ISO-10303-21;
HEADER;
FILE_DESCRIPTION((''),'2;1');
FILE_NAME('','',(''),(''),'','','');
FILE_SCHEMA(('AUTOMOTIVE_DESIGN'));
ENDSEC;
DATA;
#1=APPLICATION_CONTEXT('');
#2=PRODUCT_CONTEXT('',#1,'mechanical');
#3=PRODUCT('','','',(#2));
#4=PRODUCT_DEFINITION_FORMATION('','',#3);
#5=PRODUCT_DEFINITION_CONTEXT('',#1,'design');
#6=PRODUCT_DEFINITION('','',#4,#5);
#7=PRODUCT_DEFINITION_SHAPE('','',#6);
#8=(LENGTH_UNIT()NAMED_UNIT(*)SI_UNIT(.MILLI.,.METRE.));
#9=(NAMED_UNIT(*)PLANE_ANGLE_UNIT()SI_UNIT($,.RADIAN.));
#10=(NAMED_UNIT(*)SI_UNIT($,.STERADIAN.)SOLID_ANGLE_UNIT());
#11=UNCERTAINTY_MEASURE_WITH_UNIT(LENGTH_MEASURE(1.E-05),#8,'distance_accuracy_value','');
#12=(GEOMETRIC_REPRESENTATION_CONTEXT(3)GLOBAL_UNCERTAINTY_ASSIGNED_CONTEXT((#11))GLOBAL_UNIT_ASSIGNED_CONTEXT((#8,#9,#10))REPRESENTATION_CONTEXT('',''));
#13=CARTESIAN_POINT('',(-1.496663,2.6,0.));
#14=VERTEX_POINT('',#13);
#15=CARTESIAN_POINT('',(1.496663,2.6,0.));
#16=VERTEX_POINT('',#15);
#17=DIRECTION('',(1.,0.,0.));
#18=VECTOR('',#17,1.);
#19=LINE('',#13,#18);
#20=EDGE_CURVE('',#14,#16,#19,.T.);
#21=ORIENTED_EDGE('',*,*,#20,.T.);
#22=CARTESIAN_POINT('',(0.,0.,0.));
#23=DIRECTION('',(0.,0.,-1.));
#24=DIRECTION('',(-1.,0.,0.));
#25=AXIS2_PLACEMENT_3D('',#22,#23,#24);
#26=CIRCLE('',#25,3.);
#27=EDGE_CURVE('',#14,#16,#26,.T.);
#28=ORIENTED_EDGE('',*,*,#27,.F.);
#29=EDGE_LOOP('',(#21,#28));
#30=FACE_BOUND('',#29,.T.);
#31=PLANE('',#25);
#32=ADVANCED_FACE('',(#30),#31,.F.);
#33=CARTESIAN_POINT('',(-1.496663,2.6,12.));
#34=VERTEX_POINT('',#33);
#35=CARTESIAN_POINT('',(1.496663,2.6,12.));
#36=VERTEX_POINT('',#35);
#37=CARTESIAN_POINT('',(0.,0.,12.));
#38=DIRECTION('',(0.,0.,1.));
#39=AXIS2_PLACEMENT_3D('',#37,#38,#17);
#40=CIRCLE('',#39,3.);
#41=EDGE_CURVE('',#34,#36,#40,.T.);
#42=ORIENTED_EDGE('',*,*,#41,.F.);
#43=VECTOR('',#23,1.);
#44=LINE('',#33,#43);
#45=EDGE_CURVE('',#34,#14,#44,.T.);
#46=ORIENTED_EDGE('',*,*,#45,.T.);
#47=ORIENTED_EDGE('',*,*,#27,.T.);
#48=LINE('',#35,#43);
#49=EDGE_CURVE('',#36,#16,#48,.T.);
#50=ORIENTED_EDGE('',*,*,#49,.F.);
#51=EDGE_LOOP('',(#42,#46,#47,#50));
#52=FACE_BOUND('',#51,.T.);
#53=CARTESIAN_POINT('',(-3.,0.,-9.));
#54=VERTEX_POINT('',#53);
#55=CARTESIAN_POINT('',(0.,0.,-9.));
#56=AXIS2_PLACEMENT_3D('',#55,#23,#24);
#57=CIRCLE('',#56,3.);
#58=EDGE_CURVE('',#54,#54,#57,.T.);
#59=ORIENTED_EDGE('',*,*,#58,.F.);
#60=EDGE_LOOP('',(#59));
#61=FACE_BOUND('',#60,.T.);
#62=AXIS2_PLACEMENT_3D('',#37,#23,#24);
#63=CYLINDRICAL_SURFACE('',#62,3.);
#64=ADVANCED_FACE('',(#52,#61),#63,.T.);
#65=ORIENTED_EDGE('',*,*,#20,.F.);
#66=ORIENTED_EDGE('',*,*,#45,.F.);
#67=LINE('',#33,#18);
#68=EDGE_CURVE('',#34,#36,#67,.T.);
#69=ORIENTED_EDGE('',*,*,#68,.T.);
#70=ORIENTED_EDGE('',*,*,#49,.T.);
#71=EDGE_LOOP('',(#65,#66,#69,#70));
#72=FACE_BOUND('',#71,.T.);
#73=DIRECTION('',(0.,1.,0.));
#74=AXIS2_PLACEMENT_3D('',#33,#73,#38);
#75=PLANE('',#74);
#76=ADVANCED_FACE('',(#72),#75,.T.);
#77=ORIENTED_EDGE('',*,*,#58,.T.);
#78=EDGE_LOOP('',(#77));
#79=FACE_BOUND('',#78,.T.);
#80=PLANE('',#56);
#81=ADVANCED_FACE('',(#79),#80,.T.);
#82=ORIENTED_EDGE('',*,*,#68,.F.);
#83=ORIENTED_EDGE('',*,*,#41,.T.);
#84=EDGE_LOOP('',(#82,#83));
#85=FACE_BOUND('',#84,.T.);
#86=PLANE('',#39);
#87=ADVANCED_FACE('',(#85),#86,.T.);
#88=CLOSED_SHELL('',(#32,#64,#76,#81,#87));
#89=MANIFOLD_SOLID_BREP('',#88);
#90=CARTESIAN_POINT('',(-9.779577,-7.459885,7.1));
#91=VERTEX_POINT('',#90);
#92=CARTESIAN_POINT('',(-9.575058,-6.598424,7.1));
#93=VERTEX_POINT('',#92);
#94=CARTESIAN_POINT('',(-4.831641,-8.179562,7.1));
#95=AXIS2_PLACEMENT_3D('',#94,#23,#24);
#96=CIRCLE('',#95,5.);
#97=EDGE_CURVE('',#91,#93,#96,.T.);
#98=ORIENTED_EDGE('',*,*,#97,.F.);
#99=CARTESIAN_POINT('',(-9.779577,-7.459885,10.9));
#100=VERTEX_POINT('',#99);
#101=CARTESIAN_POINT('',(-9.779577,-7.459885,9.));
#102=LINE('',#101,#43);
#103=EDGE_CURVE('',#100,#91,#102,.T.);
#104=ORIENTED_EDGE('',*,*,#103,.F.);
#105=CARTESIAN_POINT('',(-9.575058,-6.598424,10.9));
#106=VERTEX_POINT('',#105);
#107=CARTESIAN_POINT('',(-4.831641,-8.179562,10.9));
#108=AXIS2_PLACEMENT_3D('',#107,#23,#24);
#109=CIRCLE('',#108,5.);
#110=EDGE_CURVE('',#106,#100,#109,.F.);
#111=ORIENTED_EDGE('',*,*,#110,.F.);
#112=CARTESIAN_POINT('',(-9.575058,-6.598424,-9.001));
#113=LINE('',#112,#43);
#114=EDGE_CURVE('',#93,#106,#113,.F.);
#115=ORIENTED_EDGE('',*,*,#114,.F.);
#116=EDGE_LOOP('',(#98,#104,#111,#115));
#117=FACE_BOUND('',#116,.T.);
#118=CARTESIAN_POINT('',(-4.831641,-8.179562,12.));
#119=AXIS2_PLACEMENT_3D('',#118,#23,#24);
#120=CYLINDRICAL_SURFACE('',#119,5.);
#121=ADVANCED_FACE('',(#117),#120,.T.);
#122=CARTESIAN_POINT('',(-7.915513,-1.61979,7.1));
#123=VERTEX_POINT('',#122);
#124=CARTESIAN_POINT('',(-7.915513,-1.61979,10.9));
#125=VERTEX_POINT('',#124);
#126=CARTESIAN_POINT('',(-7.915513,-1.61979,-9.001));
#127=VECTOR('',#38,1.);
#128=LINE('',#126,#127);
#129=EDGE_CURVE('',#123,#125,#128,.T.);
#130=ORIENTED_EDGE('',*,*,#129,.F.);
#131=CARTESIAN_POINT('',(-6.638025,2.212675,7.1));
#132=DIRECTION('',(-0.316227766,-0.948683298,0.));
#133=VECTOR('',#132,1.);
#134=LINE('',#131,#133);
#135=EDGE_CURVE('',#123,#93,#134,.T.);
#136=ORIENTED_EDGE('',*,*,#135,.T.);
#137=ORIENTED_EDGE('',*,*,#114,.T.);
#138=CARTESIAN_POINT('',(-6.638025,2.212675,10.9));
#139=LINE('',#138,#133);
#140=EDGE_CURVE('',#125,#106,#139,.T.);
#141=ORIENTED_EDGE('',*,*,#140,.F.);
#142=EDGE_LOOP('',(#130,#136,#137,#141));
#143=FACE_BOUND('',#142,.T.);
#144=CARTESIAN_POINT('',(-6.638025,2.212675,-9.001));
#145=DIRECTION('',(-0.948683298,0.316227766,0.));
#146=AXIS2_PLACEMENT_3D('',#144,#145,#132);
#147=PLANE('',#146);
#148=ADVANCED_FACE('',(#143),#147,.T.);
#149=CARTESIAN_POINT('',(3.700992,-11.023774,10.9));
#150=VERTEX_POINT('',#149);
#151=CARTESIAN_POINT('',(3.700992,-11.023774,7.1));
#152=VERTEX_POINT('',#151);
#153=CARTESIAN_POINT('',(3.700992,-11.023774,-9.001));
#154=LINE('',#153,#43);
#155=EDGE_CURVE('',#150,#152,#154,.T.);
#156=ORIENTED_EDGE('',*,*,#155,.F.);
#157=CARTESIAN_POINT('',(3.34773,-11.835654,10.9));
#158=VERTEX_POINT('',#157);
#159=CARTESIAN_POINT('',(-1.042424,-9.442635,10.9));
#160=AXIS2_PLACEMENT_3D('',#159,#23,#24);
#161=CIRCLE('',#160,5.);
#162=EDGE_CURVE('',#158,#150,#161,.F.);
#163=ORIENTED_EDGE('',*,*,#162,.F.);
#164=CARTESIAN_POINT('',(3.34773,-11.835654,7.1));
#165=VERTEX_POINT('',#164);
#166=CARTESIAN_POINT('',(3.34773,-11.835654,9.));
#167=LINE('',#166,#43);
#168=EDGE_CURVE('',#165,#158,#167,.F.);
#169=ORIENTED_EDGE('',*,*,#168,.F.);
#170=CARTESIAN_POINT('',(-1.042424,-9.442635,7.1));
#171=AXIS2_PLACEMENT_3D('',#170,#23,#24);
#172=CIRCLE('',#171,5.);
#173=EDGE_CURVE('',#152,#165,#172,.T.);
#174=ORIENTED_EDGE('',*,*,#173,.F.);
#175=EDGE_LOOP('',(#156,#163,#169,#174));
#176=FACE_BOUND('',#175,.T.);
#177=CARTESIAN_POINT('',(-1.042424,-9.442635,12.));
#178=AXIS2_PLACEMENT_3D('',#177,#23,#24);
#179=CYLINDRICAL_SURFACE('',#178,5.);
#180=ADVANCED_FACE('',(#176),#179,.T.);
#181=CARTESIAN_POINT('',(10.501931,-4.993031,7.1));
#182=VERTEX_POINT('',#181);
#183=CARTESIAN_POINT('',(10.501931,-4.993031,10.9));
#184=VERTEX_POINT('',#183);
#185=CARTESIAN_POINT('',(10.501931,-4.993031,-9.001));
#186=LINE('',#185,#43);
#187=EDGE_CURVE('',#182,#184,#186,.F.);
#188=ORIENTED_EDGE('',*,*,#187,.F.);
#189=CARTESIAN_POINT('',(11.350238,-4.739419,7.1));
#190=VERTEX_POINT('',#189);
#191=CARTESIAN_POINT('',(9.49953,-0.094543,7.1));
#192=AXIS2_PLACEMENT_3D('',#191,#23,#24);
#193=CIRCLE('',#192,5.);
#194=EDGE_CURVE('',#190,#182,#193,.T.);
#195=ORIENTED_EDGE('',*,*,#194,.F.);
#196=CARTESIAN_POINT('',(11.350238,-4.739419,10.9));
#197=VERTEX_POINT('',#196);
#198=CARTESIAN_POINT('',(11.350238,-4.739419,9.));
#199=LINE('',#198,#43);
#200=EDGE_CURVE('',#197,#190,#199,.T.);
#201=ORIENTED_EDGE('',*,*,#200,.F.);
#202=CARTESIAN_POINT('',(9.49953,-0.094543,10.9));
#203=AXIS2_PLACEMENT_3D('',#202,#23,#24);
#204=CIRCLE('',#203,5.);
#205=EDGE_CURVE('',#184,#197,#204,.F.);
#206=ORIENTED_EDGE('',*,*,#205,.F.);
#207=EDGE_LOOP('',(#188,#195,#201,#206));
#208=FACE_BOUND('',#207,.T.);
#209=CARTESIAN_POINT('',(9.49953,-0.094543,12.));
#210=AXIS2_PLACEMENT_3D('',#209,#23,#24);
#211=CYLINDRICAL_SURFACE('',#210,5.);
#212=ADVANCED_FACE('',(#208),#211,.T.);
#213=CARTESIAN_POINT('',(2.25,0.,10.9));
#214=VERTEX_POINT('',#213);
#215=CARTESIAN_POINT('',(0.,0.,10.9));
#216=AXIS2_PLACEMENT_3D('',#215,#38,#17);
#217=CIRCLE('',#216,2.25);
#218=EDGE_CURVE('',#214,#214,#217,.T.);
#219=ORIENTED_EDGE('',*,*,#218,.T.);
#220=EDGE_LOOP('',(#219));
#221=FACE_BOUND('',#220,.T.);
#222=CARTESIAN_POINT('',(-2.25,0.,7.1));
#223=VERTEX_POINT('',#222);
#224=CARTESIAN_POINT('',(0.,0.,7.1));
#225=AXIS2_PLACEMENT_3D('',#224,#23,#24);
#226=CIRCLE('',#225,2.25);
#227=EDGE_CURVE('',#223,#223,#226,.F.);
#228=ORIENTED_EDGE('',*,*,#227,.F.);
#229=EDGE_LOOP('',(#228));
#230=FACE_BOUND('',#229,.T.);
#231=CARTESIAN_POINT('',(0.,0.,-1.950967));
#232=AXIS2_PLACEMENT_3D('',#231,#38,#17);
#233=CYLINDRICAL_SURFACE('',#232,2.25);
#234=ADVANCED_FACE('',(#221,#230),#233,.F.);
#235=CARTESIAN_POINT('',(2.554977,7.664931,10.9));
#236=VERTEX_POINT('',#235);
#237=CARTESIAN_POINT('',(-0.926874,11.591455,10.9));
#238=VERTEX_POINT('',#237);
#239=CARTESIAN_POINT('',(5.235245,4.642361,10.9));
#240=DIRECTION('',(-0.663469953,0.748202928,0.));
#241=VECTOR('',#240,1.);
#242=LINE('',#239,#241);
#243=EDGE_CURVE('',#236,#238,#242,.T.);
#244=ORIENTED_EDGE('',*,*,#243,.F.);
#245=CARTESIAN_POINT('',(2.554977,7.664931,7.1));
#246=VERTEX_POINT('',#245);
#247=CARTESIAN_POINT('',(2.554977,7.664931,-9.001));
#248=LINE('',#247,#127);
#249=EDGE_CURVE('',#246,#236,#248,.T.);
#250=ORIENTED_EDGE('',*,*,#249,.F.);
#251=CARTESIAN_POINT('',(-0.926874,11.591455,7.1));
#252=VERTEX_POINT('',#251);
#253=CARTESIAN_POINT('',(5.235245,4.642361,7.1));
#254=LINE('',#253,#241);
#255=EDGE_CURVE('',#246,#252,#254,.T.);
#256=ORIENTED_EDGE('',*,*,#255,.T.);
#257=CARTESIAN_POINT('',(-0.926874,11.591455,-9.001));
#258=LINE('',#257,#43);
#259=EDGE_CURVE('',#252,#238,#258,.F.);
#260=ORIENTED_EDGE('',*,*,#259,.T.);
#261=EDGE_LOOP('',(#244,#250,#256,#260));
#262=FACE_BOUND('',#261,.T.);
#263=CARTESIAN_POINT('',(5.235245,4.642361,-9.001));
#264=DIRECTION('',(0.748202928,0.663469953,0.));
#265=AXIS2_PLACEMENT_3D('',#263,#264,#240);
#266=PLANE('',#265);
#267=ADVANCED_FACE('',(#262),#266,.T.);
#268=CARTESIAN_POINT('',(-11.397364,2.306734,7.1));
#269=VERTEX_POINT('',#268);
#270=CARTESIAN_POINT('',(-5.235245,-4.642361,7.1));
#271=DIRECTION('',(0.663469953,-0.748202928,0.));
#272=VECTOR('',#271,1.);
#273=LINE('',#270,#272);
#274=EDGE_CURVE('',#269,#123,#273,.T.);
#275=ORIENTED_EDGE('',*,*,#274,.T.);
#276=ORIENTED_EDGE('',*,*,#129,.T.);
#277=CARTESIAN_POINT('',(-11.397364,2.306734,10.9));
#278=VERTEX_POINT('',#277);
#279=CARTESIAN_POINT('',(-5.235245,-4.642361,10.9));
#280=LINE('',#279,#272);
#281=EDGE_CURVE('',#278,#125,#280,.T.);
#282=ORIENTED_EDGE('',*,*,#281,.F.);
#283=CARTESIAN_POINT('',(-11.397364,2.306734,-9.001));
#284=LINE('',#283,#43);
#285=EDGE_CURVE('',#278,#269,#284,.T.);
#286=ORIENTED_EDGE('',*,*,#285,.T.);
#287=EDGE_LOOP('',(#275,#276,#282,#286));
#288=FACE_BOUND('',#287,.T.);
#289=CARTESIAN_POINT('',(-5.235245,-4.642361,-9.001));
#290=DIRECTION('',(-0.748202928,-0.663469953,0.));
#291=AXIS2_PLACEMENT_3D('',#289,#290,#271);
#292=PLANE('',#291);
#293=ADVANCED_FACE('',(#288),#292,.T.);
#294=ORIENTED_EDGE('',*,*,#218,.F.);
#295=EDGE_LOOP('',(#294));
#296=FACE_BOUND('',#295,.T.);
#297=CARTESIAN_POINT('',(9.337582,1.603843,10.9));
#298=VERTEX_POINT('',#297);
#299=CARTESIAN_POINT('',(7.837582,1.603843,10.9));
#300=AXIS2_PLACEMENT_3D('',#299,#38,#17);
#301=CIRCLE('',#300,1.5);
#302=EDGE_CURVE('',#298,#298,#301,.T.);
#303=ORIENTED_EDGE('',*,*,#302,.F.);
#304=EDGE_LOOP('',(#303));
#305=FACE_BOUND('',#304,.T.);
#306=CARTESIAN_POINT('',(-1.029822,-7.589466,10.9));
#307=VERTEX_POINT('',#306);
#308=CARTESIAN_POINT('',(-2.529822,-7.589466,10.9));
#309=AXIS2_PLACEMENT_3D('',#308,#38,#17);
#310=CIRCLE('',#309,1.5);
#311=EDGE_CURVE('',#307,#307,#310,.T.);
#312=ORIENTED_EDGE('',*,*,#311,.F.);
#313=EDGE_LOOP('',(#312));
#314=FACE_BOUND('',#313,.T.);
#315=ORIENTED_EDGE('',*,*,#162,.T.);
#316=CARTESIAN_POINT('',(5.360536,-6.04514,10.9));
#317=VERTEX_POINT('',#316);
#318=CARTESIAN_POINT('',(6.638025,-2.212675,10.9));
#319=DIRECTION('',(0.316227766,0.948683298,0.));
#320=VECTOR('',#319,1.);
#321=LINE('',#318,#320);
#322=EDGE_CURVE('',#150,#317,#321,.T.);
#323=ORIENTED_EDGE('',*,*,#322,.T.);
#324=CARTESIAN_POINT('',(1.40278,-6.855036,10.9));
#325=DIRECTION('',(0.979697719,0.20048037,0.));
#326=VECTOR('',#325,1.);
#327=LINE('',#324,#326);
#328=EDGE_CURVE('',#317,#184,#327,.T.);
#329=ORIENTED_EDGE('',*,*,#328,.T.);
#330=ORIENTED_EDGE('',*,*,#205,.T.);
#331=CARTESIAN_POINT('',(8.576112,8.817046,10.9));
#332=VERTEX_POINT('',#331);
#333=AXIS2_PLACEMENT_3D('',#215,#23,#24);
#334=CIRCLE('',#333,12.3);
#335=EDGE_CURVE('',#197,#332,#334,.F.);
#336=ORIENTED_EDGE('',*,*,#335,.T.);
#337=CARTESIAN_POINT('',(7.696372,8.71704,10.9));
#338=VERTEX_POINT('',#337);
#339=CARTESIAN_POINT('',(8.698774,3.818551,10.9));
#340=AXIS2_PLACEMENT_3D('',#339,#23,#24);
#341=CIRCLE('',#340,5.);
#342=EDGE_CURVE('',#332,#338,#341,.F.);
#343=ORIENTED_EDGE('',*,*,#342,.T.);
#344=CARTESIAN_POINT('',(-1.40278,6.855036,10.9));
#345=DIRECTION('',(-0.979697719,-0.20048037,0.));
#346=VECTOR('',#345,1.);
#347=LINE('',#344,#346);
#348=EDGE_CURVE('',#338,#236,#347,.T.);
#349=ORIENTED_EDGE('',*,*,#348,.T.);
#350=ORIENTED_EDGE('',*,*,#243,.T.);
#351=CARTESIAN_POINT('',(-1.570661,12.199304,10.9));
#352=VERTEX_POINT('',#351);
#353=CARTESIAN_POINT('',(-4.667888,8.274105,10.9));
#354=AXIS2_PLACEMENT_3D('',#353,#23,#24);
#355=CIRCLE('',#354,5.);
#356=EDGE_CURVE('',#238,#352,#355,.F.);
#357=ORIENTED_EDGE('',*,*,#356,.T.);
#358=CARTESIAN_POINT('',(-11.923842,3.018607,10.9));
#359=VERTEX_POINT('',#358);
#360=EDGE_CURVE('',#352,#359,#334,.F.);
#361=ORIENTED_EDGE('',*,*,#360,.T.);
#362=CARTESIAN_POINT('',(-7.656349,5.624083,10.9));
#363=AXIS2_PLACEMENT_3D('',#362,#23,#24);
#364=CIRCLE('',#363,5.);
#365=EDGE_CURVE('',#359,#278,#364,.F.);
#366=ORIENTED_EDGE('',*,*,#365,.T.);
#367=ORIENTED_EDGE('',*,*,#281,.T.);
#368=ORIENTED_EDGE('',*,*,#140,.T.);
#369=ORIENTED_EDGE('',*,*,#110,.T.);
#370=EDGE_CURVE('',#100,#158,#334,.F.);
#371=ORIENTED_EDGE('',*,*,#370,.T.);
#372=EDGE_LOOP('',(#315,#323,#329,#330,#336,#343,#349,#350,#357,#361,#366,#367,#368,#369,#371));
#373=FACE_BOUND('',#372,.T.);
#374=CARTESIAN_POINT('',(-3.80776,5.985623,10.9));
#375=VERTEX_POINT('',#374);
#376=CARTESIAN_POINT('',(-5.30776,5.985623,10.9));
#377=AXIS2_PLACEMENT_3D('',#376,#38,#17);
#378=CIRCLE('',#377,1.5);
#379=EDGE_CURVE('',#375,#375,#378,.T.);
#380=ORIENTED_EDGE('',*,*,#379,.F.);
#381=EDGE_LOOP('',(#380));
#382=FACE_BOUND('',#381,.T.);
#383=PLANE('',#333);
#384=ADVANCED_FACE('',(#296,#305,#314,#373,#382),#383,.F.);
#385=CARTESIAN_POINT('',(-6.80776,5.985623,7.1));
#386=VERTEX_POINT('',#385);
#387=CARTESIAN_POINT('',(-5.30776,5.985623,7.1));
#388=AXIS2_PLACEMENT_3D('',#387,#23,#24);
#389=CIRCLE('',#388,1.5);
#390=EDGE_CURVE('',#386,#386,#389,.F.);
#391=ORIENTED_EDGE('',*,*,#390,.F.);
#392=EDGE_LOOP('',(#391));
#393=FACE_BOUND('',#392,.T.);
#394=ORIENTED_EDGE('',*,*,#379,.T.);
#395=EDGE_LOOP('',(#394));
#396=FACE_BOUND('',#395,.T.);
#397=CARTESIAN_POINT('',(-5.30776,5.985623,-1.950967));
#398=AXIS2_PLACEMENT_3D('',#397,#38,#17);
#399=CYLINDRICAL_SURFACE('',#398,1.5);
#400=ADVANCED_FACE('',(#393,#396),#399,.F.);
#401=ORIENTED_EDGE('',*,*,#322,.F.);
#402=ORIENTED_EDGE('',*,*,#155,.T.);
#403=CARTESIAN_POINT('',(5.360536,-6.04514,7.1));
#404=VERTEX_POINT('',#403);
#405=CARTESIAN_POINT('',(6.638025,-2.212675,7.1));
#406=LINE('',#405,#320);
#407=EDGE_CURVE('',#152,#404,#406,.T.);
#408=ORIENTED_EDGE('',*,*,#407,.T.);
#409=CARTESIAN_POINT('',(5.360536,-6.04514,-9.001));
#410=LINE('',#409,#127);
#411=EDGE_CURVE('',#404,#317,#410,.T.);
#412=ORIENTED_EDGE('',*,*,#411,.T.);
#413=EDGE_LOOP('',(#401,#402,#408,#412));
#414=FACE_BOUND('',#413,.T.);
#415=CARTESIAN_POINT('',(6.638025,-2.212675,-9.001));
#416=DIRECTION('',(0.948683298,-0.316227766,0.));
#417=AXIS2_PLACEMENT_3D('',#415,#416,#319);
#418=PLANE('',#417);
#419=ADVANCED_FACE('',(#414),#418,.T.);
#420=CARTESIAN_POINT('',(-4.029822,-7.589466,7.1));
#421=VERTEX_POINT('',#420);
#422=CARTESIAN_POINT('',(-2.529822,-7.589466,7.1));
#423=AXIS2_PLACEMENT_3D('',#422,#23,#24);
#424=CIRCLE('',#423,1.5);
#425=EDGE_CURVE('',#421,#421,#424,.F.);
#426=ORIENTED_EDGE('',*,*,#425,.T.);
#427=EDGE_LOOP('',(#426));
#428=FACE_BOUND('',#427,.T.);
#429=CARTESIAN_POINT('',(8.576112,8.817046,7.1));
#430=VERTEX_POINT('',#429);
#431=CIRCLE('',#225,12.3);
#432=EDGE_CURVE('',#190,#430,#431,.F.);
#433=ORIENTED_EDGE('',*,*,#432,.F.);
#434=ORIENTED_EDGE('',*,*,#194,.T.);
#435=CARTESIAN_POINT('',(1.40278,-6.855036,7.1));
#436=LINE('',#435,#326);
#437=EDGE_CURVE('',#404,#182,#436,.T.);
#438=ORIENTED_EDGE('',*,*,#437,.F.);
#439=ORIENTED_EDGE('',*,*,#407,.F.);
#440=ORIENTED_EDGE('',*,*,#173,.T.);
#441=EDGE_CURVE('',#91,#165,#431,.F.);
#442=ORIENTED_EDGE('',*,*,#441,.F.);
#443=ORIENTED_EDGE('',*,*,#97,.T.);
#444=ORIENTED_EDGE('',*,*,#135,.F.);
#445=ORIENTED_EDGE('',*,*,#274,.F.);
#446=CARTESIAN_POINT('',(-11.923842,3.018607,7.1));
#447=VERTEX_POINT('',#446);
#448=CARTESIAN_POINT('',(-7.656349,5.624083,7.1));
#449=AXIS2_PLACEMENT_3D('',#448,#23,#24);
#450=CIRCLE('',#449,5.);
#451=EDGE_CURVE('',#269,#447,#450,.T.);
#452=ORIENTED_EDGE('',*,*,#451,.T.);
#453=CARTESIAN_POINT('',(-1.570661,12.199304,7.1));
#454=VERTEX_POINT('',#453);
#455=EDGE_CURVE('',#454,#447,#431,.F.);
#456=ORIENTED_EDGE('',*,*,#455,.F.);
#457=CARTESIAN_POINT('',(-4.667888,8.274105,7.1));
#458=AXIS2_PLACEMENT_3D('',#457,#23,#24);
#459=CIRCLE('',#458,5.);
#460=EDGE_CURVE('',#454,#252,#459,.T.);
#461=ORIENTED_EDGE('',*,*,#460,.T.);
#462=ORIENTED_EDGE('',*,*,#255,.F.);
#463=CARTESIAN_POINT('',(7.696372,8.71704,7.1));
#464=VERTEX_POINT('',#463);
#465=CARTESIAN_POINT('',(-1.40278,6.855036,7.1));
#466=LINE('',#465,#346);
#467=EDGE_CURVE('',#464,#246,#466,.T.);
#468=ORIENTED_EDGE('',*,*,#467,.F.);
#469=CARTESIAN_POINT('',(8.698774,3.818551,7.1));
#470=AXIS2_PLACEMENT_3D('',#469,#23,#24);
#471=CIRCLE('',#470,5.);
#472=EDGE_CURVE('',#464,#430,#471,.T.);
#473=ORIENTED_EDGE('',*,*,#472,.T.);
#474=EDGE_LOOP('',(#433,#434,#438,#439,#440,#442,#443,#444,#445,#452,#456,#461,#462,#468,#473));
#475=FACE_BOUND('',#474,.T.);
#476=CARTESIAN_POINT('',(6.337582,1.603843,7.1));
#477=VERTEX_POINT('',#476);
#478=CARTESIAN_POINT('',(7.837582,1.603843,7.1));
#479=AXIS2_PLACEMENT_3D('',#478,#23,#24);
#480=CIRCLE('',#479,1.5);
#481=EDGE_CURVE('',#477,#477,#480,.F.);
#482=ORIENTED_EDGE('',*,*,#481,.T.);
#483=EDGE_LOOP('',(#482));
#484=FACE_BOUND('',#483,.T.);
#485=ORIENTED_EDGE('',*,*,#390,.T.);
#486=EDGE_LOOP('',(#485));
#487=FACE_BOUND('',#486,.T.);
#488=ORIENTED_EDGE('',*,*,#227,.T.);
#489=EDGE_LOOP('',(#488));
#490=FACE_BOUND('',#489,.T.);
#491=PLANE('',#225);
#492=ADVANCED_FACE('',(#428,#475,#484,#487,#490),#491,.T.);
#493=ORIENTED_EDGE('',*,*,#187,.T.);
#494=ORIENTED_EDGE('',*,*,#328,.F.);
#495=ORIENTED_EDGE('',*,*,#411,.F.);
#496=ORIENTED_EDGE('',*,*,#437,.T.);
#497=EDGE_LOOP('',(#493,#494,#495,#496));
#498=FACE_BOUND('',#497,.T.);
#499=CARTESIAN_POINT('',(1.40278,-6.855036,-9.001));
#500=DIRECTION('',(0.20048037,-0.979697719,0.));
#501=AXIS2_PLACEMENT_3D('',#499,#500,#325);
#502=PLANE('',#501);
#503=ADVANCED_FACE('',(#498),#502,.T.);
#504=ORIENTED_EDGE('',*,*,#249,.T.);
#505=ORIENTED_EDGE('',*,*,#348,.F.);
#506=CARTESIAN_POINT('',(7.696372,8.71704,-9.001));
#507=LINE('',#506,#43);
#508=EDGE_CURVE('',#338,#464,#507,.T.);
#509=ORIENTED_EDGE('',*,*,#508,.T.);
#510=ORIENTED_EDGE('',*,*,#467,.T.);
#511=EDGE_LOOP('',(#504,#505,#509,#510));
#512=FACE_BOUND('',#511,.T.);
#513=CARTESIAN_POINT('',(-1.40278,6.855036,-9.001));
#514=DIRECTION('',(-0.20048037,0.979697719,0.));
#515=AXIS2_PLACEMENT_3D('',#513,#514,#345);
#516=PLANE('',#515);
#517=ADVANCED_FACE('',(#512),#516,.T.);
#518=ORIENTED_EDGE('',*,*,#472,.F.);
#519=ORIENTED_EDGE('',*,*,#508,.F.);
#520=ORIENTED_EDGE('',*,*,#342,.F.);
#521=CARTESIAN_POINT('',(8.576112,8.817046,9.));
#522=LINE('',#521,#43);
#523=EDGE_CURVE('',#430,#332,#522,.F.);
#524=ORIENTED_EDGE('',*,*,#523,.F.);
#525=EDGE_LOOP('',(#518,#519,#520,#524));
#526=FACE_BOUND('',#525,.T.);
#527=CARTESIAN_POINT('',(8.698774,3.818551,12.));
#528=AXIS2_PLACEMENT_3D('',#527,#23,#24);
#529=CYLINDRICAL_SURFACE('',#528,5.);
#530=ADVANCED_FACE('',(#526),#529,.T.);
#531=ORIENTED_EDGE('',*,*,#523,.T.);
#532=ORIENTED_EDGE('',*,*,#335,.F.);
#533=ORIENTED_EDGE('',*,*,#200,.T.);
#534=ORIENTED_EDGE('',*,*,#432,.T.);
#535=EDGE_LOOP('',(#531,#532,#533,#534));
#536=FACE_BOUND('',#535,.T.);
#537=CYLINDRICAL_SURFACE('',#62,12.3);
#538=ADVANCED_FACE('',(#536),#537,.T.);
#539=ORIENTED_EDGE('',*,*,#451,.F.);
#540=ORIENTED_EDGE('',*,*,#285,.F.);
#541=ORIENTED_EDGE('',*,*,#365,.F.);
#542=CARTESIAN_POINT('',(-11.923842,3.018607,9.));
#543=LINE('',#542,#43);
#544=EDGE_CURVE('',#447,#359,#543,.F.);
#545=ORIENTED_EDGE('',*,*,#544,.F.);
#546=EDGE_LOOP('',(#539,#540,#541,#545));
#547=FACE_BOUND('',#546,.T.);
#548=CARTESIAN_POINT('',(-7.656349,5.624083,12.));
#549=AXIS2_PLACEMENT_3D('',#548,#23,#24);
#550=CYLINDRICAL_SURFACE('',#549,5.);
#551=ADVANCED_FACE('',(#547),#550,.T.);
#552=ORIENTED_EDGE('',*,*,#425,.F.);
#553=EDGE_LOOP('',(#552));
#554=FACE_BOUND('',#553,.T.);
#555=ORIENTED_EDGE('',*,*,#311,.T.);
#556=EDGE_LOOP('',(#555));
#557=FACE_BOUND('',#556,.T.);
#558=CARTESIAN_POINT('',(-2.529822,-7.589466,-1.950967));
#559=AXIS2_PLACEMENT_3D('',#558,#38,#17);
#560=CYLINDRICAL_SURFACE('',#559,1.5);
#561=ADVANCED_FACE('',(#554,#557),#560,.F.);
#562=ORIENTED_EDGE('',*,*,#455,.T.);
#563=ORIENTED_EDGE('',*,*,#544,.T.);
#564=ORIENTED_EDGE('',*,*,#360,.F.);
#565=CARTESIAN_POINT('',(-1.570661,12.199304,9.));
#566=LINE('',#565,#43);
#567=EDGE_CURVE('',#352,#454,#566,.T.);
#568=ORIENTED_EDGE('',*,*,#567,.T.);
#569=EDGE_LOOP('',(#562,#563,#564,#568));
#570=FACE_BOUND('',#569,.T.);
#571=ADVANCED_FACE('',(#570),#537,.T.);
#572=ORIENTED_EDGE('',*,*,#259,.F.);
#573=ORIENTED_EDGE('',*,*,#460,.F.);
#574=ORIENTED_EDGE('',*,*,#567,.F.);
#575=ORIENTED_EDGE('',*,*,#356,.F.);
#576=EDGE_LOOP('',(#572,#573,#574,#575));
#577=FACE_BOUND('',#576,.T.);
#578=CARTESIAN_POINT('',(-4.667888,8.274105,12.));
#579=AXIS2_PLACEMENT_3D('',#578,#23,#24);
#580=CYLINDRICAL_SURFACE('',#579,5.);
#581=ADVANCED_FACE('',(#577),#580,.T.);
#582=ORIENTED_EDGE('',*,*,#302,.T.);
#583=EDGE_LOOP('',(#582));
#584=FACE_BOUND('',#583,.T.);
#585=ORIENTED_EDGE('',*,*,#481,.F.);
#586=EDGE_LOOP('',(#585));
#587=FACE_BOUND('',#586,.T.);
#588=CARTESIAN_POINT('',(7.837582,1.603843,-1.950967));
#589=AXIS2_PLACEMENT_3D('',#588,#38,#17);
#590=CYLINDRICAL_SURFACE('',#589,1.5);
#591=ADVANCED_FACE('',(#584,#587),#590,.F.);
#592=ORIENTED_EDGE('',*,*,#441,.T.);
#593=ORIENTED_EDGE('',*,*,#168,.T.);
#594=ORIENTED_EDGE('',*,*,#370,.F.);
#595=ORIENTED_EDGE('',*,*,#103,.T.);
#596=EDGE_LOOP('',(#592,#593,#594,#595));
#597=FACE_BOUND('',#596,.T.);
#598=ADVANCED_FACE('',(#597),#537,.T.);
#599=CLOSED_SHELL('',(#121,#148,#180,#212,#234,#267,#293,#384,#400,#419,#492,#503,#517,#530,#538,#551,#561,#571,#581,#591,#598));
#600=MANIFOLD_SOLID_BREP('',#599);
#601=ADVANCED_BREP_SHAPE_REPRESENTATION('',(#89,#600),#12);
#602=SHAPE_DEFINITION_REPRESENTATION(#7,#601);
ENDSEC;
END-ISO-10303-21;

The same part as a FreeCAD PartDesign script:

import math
import FreeCAD as App
import Part
import Sketcher
from FreeCAD import Vector


def edges_at(feature, points):
    """Names of the edges that pass closest to the given points."""
    edges = feature.Shape.Edges
    near = lambda p: min(range(len(edges)), key=lambda i: edges[i].distToShape(Part.Vertex(*p))[0])
    return sorted({f"Edge{near(p) + 1}" for p in points})

doc = App.newDocument("Part")
body = doc.addObject("PartDesign::Body", "Body")

# Sketch on XY plane
sketch1 = body.newObject("Sketcher::SketchObject", "Sketch")
sketch1.AttachmentSupport = (doc.getObject("XY_Plane"), [""])
sketch1.MapMode = "FlatFace"
sketch1.addGeometry(Part.LineSegment(Vector(1.5, 2.6, 0), Vector(-1.5, 2.6, 0)), False)
sketch1.addGeometry(Part.ArcOfCircle(Part.Circle(Vector(0, 0, 0), Vector(0, 0, 1), 3), math.radians(120), math.radians(420)), False)
sketch1.addConstraint(Sketcher.Constraint("Coincident", 0, 1, 1, 2))
sketch1.addConstraint(Sketcher.Constraint("Coincident", 1, 1, 0, 2))
sketch1.addConstraint(Sketcher.Constraint("Horizontal", 0))
sketch1.addConstraint(Sketcher.Constraint("Coincident", 1, 3, -1, 1))
sketch1.addConstraint(Sketcher.Constraint("Radius", 1, 3.0))
sketch1.addConstraint(Sketcher.Constraint("DistanceY", -1, 1, 0, 1, 2.6))
pad1 = body.newObject("PartDesign::Pad", "Pad")
pad1.Profile = sketch1
pad1.Length = 12

# Sketch on XY plane
sketch2 = body.newObject("Sketcher::SketchObject", "Sketch001")
sketch2.AttachmentSupport = (doc.getObject("XY_Plane"), [""])
sketch2.MapMode = "FlatFace"
sketch2.AttachmentOffset = App.Placement(Vector(0, 0, -9), App.Rotation())
sketch2.addGeometry(Part.Circle(Vector(0, 0, 0), Vector(0, 0, 1), 3), False)
sketch2.addConstraint(Sketcher.Constraint("Coincident", 0, 3, -1, 1))
sketch2.addConstraint(Sketcher.Constraint("Diameter", 0, 6.0))
pad2 = body.newObject("PartDesign::Pad", "Pad001")
pad2.Profile = sketch2
pad2.Length = 9
body2 = doc.addObject("PartDesign::Body", "Body001")

# Sketch on XY plane
sketch3 = body2.newObject("Sketcher::SketchObject", "Sketch002")
sketch3.AttachmentSupport = (doc.getObject("XY_Plane001"), [""])
sketch3.MapMode = "FlatFace"
sketch3.AttachmentOffset = App.Placement(Vector(0, 0, 12), App.Rotation())
sketch3.addGeometry(Part.Circle(Vector(0, 0, 0), Vector(0, 0, 1), 5.7), False)
sketch3.addGeometry(Part.ArcOfCircle(Part.Circle(Vector(0, 0, 0), Vector(0, 0, 1), 3.2), math.radians(119), math.radians(421)), False)
sketch3.addGeometry(Part.LineSegment(Vector(-1.5, 2.8, 0), Vector(1.5, 2.8, 0)), False)
sketch3.addConstraint(Sketcher.Constraint("Coincident", 1, 1, 2, 1))
sketch3.addConstraint(Sketcher.Constraint("Coincident", 2, 2, 1, 2))
sketch3.addConstraint(Sketcher.Constraint("Horizontal", 2))
sketch3.addConstraint(Sketcher.Constraint("Coincident", 0, 3, -1, 1))
sketch3.addConstraint(Sketcher.Constraint("Coincident", 1, 3, -1, 1))
sketch3.addConstraint(Sketcher.Constraint("Diameter", 0, 11.4))
sketch3.addConstraint(Sketcher.Constraint("Radius", 1, 3.2))
sketch3.addConstraint(Sketcher.Constraint("DistanceY", -1, 1, 1, 1, 2.8))
pad3 = body2.newObject("PartDesign::Pad", "Pad002")
pad3.Profile = sketch3
pad3.Length = 8
pad3.Reversed = True

# Sketch on XY plane
sketch4 = body2.newObject("Sketcher::SketchObject", "Sketch003")
sketch4.AttachmentSupport = (doc.getObject("XY_Plane001"), [""])
sketch4.MapMode = "FlatFace"
sketch4.AttachmentOffset = App.Placement(Vector(0, 0, 4), App.Rotation())
sketch4.addGeometry(Part.Circle(Vector(0, 0, 0), Vector(0, 0, 1), 8.2), False)
sketch4.addGeometry(Part.Circle(Vector(0, 0, 0), Vector(0, 0, 1), 3.2), False)
sketch4.addConstraint(Sketcher.Constraint("Coincident", 0, 3, -1, 1))
sketch4.addConstraint(Sketcher.Constraint("Coincident", 1, 3, -1, 1))
sketch4.addConstraint(Sketcher.Constraint("Diameter", 0, 16.4))
sketch4.addConstraint(Sketcher.Constraint("Diameter", 1, 6.4))
pad4 = body2.newObject("PartDesign::Pad", "Pad003")
pad4.Profile = sketch4
pad4.Length = 5
pad4.Reversed = True

# Sketch on XY plane
sketch5 = body2.newObject("Sketcher::SketchObject", "Sketch004")
sketch5.AttachmentSupport = (doc.getObject("XY_Plane001"), [""])
sketch5.MapMode = "FlatFace"
sketch5.AttachmentOffset = App.Placement(Vector(0, 0, 4), App.Rotation())
sketch5.addGeometry(Part.Circle(Vector(0, 0, 0), Vector(0, 0, 1), 8.2), False)
sketch5.addGeometry(Part.Circle(Vector(0, 0, 0), Vector(0, 0, 1), 4.8), False)
sketch5.addConstraint(Sketcher.Constraint("Coincident", 0, 3, -1, 1))
sketch5.addConstraint(Sketcher.Constraint("Coincident", 1, 3, -1, 1))
sketch5.addConstraint(Sketcher.Constraint("Diameter", 0, 16.4))
sketch5.addConstraint(Sketcher.Constraint("Diameter", 1, 9.5))
pocket1 = body2.newObject("PartDesign::Pocket", "Pocket")
pocket1.Profile = sketch5
pocket1.Type = "ThroughAll"
pocket1.Midplane = True

# Sketch on XY plane
sketch6 = body2.newObject("Sketcher::SketchObject", "Sketch005")
sketch6.AttachmentSupport = (doc.getObject("XY_Plane001"), [""])
sketch6.MapMode = "FlatFace"
sketch6.AttachmentOffset = App.Placement(Vector(0, 0, -1), App.Rotation())
sketch6.addGeometry(Part.Circle(Vector(0, 0, 0), Vector(0, 0, 1), 14.5), False)
sketch6.addGeometry(Part.Circle(Vector(0, 0, 0), Vector(0, 0, 1), 4.8), False)
sketch6.addConstraint(Sketcher.Constraint("Coincident", 0, 3, -1, 1))
sketch6.addConstraint(Sketcher.Constraint("Coincident", 1, 3, -1, 1))
sketch6.addConstraint(Sketcher.Constraint("Diameter", 0, 29.0))
sketch6.addConstraint(Sketcher.Constraint("Diameter", 1, 9.5))
pad5 = body2.newObject("PartDesign::Pad", "Pad004")
pad5.Profile = sketch6
pad5.Length = 13

# Sketch on XY plane
sketch7 = body2.newObject("Sketcher::SketchObject", "Sketch006")
sketch7.AttachmentSupport = (doc.getObject("XY_Plane001"), [""])
sketch7.MapMode = "FlatFace"
sketch7.AttachmentOffset = App.Placement(Vector(0, 0, -1), App.Rotation())
sketch7.addGeometry(Part.Circle(Vector(7.8, 1.6, 0), Vector(0, 0, 1), 2.4), False)
sketch7.addGeometry(Part.Circle(Vector(-5.3, 6, 0), Vector(0, 0, 1), 2.4), False)
sketch7.addGeometry(Part.Circle(Vector(-2.5, -7.6, 0), Vector(0, 0, 1), 2.4), False)
sketch7.addConstraint(Sketcher.Constraint("Equal", 0, 1))
sketch7.addConstraint(Sketcher.Constraint("Equal", 1, 2))
sketch7.addConstraint(Sketcher.Constraint("Diameter", 0, 4.8))
sketch7.addConstraint(Sketcher.Constraint("DistanceX", -1, 1, 0, 3, 7.837582))
sketch7.addConstraint(Sketcher.Constraint("DistanceX", 1, 3, -1, 1, 5.30776))
sketch7.addConstraint(Sketcher.Constraint("DistanceY", 0, 3, 1, 3, 4.38178))
sketch7.addConstraint(Sketcher.Constraint("DistanceY", 2, 3, 1, 3, 13.57509))
sketch7.addConstraint(Sketcher.Constraint("DistanceY", -1, 1, 0, 3, 1.603843))
sketch7.addConstraint(Sketcher.Constraint("DistanceX", 2, 3, -1, 1, 2.529822))
pocket2 = body2.newObject("PartDesign::Pocket", "Pocket001")
pocket2.Profile = sketch7
pocket2.Type = "ThroughAll"
pocket2.Reversed = True

# Sketch on XY plane
sketch8 = body2.newObject("Sketcher::SketchObject", "Sketch007")
sketch8.AttachmentSupport = (doc.getObject("XY_Plane001"), [""])
sketch8.MapMode = "FlatFace"
sketch8.AttachmentOffset = App.Placement(Vector(0, 0, 12), App.Rotation())
sketch8.addGeometry(Part.ArcOfCircle(Part.Circle(Vector(0, 0, 0), Vector(0, 0, 1), 14.5), math.radians(0), math.radians(210)), False)
sketch8.addGeometry(Part.ArcOfCircle(Part.Circle(Vector(0, 0, 0), Vector(0, 0, 1), 14.5), math.radians(-150), math.radians(0)), False)
sketch8.addGeometry(Part.Circle(Vector(-2.5, -7.6, 0), Vector(0, 0, 1), 2.4), False)
sketch8.addGeometry(Part.LineSegment(Vector(-1.5, 2.8, 0), Vector(1.5, 2.8, 0)), False)
sketch8.addGeometry(Part.ArcOfCircle(Part.Circle(Vector(0, 0, 0), Vector(0, 0, 1), 3.2), math.radians(119), math.radians(421)), False)
sketch8.addGeometry(Part.Circle(Vector(-5.3, 6, 0), Vector(0, 0, 1), 2.4), False)
sketch8.addGeometry(Part.Circle(Vector(7.8, 1.6, 0), Vector(0, 0, 1), 2.4), False)
sketch8.addConstraint(Sketcher.Constraint("Tangent", 0, 1, 1, 2))
sketch8.addConstraint(Sketcher.Constraint("Coincident", 1, 1, 0, 2))
sketch8.addConstraint(Sketcher.Constraint("Coincident", 3, 1, 4, 1))
sketch8.addConstraint(Sketcher.Constraint("Coincident", 4, 2, 3, 2))
sketch8.addConstraint(Sketcher.Constraint("Horizontal", 3))
sketch8.addConstraint(Sketcher.Constraint("Coincident", 0, 3, -1, 1))
sketch8.addConstraint(Sketcher.Constraint("Coincident", 4, 3, -1, 1))
sketch8.addConstraint(Sketcher.Constraint("Equal", 2, 5))
sketch8.addConstraint(Sketcher.Constraint("Equal", 5, 6))
sketch8.addConstraint(Sketcher.Constraint("PointOnObject", 0, 1, -1))
sketch8.addConstraint(Sketcher.Constraint("Diameter", 2, 4.8))
sketch8.addConstraint(Sketcher.Constraint("Radius", 0, 14.5))
sketch8.addConstraint(Sketcher.Constraint("Radius", 4, 3.2))
sketch8.addConstraint(Sketcher.Constraint("DistanceY", -1, 1, 3, 1, 2.8))
sketch8.addConstraint(Sketcher.Constraint("DistanceX", 5, 3, -1, 1, 5.30776))
sketch8.addConstraint(Sketcher.Constraint("DistanceX", -1, 1, 6, 3, 7.837582))
sketch8.addConstraint(Sketcher.Constraint("DistanceX", 1, 1, -1, 1, 12.557379))
sketch8.addConstraint(Sketcher.Constraint("DistanceY", 2, 3, 5, 3, 13.57509))
sketch8.addConstraint(Sketcher.Constraint("DistanceY", 2, 3, 6, 3, 9.193309))
sketch8.addConstraint(Sketcher.Constraint("DistanceX", 2, 3, -1, 1, 2.529822))
sketch8.addConstraint(Sketcher.Constraint("DistanceY", 2, 3, -1, 1, 7.589466))
pad6 = body2.newObject("PartDesign::Pad", "Pad005")
pad6.Profile = sketch8
pad6.Length = 3.8

# Sketch on XY plane
sketch9 = body2.newObject("Sketcher::SketchObject", "Sketch008")
sketch9.AttachmentSupport = (doc.getObject("XY_Plane001"), [""])
sketch9.MapMode = "FlatFace"
sketch9.AttachmentOffset = App.Placement(Vector(0, 0, -1), App.Rotation())
sketch9.addGeometry(Part.Circle(Vector(0, 0, 0), Vector(0, 0, 1), 14), False)
sketch9.addConstraint(Sketcher.Constraint("Coincident", 0, 3, -1, 1))
sketch9.addConstraint(Sketcher.Constraint("Diameter", 0, 29.0))
pocket3 = body2.newObject("PartDesign::Pocket", "Pocket002")
pocket3.Profile = sketch9
pocket3.Length = 2.5
pocket3.Reversed = True

# Sketch on XY plane
sketch10 = body2.newObject("Sketcher::SketchObject", "Sketch009")
sketch10.AttachmentSupport = (doc.getObject("XY_Plane001"), [""])
sketch10.MapMode = "FlatFace"
sketch10.AttachmentOffset = App.Placement(Vector(0, 0, 1.5), App.Rotation())
sketch10.addGeometry(Part.Circle(Vector(0, 0, 0), Vector(0, 0, 1), 14), False)
sketch10.addConstraint(Sketcher.Constraint("Coincident", 0, 3, -1, 1))
sketch10.addConstraint(Sketcher.Constraint("Diameter", 0, 29.0))
pocket4 = body2.newObject("PartDesign::Pocket", "Pocket003")
pocket4.Profile = sketch10
pocket4.Length = 5.6
pocket4.Reversed = True

# Sketch on XY plane
sketch11 = body2.newObject("Sketcher::SketchObject", "Sketch010")
sketch11.AttachmentSupport = (doc.getObject("XY_Plane001"), [""])
sketch11.MapMode = "FlatFace"
sketch11.AttachmentOffset = App.Placement(Vector(0, 0, 15.8), App.Rotation())
sketch11.addGeometry(Part.ArcOfCircle(Part.Circle(Vector(0, 0, 0), Vector(0, 0, 1), 15), math.radians(160), math.radians(223)), False)
sketch11.addGeometry(Part.LineSegment(Vector(-11, -10, 0), Vector(-8, -2, 0)), False)
sketch11.addGeometry(Part.LineSegment(Vector(-8, -2, 0), Vector(-14, 5, 0)), False)
sketch11.addGeometry(Part.ArcOfCircle(Part.Circle(Vector(0, 0, 0), Vector(0, 0, 1), 14), math.radians(40), math.radians(103)), False)
sketch11.addGeometry(Part.LineSegment(Vector(-3, 14, 0), Vector(3, 8, 0)), False)
sketch11.addGeometry(Part.LineSegment(Vector(3, 8, 0), Vector(11, 9, 0)), False)
sketch11.addGeometry(Part.LineSegment(Vector(5, -6, 0), Vector(3, -14, 0)), False)
sketch11.addGeometry(Part.ArcOfCircle(Part.Circle(Vector(0, 0, 0), Vector(0, 0, 1), 14), math.radians(-80), math.radians(-17)), False)
sketch11.addGeometry(Part.LineSegment(Vector(14, -4, 0), Vector(5, -6, 0)), False)
sketch11.addConstraint(Sketcher.Constraint("Coincident", 0, 2, 1, 1))
sketch11.addConstraint(Sketcher.Constraint("Coincident", 1, 2, 2, 1))
sketch11.addConstraint(Sketcher.Constraint("Coincident", 2, 2, 0, 1))
sketch11.addConstraint(Sketcher.Constraint("Coincident", 3, 2, 4, 1))
sketch11.addConstraint(Sketcher.Constraint("Coincident", 4, 2, 5, 1))
sketch11.addConstraint(Sketcher.Constraint("Coincident", 5, 2, 3, 1))
sketch11.addConstraint(Sketcher.Constraint("Coincident", 6, 2, 7, 1))
sketch11.addConstraint(Sketcher.Constraint("Coincident", 7, 2, 8, 1))
sketch11.addConstraint(Sketcher.Constraint("Coincident", 8, 2, 6, 1))
sketch11.addConstraint(Sketcher.Constraint("Coincident", 0, 3, -1, 1))
sketch11.addConstraint(Sketcher.Constraint("Coincident", 3, 3, -1, 1))
sketch11.addConstraint(Sketcher.Constraint("Coincident", 7, 3, -1, 1))
sketch11.addConstraint(Sketcher.Constraint("Equal", 0, 3))
sketch11.addConstraint(Sketcher.Constraint("Equal", 3, 7))
sketch11.addConstraint(Sketcher.Constraint("Parallel", 2, 4))
sketch11.addConstraint(Sketcher.Constraint("Parallel", 1, 6))
sketch11.addConstraint(Sketcher.Constraint("Parallel", 5, 8))
sketch11.addConstraint(Sketcher.Constraint("Equal", 1, 2))
sketch11.addConstraint(Sketcher.Constraint("Equal", 2, 4))
sketch11.addConstraint(Sketcher.Constraint("Equal", 4, 5))
sketch11.addConstraint(Sketcher.Constraint("Equal", 5, 6))
sketch11.addConstraint(Sketcher.Constraint("Equal", 6, 8))
sketch11.addConstraint(Sketcher.Constraint("Radius", 0, 14.5))
sketch11.addConstraint(Sketcher.Constraint("DistanceY", 0, 2, -1, 1, 9.835629))
sketch11.addConstraint(Sketcher.Constraint("DistanceY", 1, 2, -1, 1, 1.61979))
sketch11.addConstraint(Sketcher.Constraint("DistanceX", 2, 2, -1, 1, 13.661332))
sketch11.addConstraint(Sketcher.Constraint("DistanceX", 3, 2, -1, 1, 3.190841))
pocket5 = body2.newObject("PartDesign::Pocket", "Pocket004")
pocket5.Profile = sketch11
pocket5.Length = 8.7
doc.recompute()

fillet = body2.newObject("PartDesign::Fillet", "Fillet")
fillet.Base = (pocket5, edges_at(pocket5, [
    (-10.654, -9.836, 9.55),
    (-13.661, 4.86, 9.55),
    (-3.191, 14.145, 9.55),
    (11.039, 9.401, 9.55),
    (13.845, -4.309, 9.55),
    (2.622, -14.261, 9.55),
]))
fillet.Radius = 5

# Sketch on XY plane
sketch12 = body2.newObject("Sketcher::SketchObject", "Sketch011")
sketch12.AttachmentSupport = (doc.getObject("XY_Plane001"), [""])
sketch12.MapMode = "FlatFace"
sketch12.AttachmentOffset = App.Placement(Vector(0, 0, 15.8), App.Rotation())
sketch12.addGeometry(Part.LineSegment(Vector(-12.1, 1.6, 0), Vector(-9, -1.9, 0)), False)
sketch12.addGeometry(Part.LineSegment(Vector(-9, -1.9, 0), Vector(-10.5, -6.3, 0)), False)
sketch12.addGeometry(Part.ArcOfCircle(Part.Circle(Vector(-4.8, -8.2, 0), Vector(0, 0, 1), 6), math.radians(162), math.radians(239)), False)
sketch12.addGeometry(Part.ArcOfCircle(Part.Circle(Vector(0, 0, 0), Vector(0, 0, 1), 15.5), math.radians(-121), math.radians(-96)), False)
sketch12.addGeometry(Part.ArcOfCircle(Part.Circle(Vector(-1, -9.4, 0), Vector(0, 0, 1), 6), math.radians(-96), math.radians(-18)), False)
sketch12.addGeometry(Part.LineSegment(Vector(4.6, -11.3, 0), Vector(6.1, -6.9, 0)), False)
sketch12.addGeometry(Part.LineSegment(Vector(6.1, -6.9, 0), Vector(10.7, -6, 0)), False)
sketch12.addGeometry(Part.ArcOfCircle(Part.Circle(Vector(9.5, -0.1, 0), Vector(0, 0, 1), 6), math.radians(-78), math.radians(-1)), False)
sketch12.addGeometry(Part.ArcOfCircle(Part.Circle(Vector(0, 0, 0), Vector(0, 0, 1), 15.5), math.radians(-1), math.radians(24)), False)
sketch12.addGeometry(Part.ArcOfCircle(Part.Circle(Vector(8.7, 3.8, 0), Vector(0, 0, 1), 6), math.radians(24), math.radians(102)), False)
sketch12.addGeometry(Part.LineSegment(Vector(7.5, 9.7, 0), Vector(2.9, 8.8, 0)), False)
sketch12.addGeometry(Part.LineSegment(Vector(2.9, 8.8, 0), Vector(-0.2, 12.3, 0)), False)
sketch12.addGeometry(Part.ArcOfCircle(Part.Circle(Vector(-4.7, 8.3, 0), Vector(0, 0, 1), 6), math.radians(42), math.radians(119)), False)
sketch12.addGeometry(Part.ArcOfCircle(Part.Circle(Vector(0, 0, 0), Vector(0, 0, 1), 15.5), math.radians(119), math.radians(144)), False)
sketch12.addGeometry(Part.ArcOfCircle(Part.Circle(Vector(-7.7, 5.6, 0), Vector(0, 0, 1), 6), math.radians(144), math.radians(222)), False)
sketch12.addConstraint(Sketcher.Constraint("Coincident", 0, 2, 1, 1))
sketch12.addConstraint(Sketcher.Constraint("Tangent", 1, 2, 2, 1))
sketch12.addConstraint(Sketcher.Constraint("Tangent", 2, 2, 3, 1))
sketch12.addConstraint(Sketcher.Constraint("Tangent", 3, 2, 4, 1))
sketch12.addConstraint(Sketcher.Constraint("Tangent", 4, 2, 5, 1))
sketch12.addConstraint(Sketcher.Constraint("Coincident", 5, 2, 6, 1))
sketch12.addConstraint(Sketcher.Constraint("Tangent", 6, 2, 7, 1))
sketch12.addConstraint(Sketcher.Constraint("Tangent", 7, 2, 8, 1))
sketch12.addConstraint(Sketcher.Constraint("Tangent", 8, 2, 9, 1))
sketch12.addConstraint(Sketcher.Constraint("Tangent", 9, 2, 10, 1))
sketch12.addConstraint(Sketcher.Constraint("Coincident", 10, 2, 11, 1))
sketch12.addConstraint(Sketcher.Constraint("Tangent", 11, 2, 12, 1))
sketch12.addConstraint(Sketcher.Constraint("Tangent", 12, 2, 13, 1))
sketch12.addConstraint(Sketcher.Constraint("Tangent", 13, 2, 14, 1))
sketch12.addConstraint(Sketcher.Constraint("Tangent", 14, 2, 0, 1))
sketch12.addConstraint(Sketcher.Constraint("Coincident", 3, 3, -1, 1))
sketch12.addConstraint(Sketcher.Constraint("Coincident", 8, 3, -1, 1))
sketch12.addConstraint(Sketcher.Constraint("Coincident", 13, 3, -1, 1))
sketch12.addConstraint(Sketcher.Constraint("Equal", 2, 4))
sketch12.addConstraint(Sketcher.Constraint("Equal", 4, 7))
sketch12.addConstraint(Sketcher.Constraint("Equal", 3, 8))
sketch12.addConstraint(Sketcher.Constraint("Equal", 7, 9))
sketch12.addConstraint(Sketcher.Constraint("Equal", 9, 12))
sketch12.addConstraint(Sketcher.Constraint("Equal", 8, 13))
sketch12.addConstraint(Sketcher.Constraint("Equal", 12, 14))
sketch12.addConstraint(Sketcher.Constraint("Parallel", 1, 5))
sketch12.addConstraint(Sketcher.Constraint("Parallel", 6, 10))
sketch12.addConstraint(Sketcher.Constraint("Parallel", 0, 11))
sketch12.addConstraint(Sketcher.Constraint("Equal", 0, 1))
sketch12.addConstraint(Sketcher.Constraint("Equal", 1, 5))
sketch12.addConstraint(Sketcher.Constraint("Equal", 5, 6))
sketch12.addConstraint(Sketcher.Constraint("Equal", 6, 10))
sketch12.addConstraint(Sketcher.Constraint("Equal", 10, 11))
sketch12.addConstraint(Sketcher.Constraint("Radius", 2, 6.0))
sketch12.addConstraint(Sketcher.Constraint("Radius", 3, 15.5))
sketch12.addConstraint(Sketcher.Constraint("DistanceY", 4, 2, -1, 1, 11.340001))
sketch12.addConstraint(Sketcher.Constraint("DistanceY", 2, 2, -1, 1, 13.345602))
sketch12.addConstraint(Sketcher.Constraint("DistanceX", 4, 3, 9, 3, 9.741198))
sketch12.addConstraint(Sketcher.Constraint("DistanceX", 1, 2, 2, 3, 5.6921))
pocket6 = body2.newObject("PartDesign::Pocket", "Pocket005")
pocket6.Profile = sketch12
pocket6.Length = 4.9

# Sketch on XY plane
sketch13 = body2.newObject("Sketcher::SketchObject", "Sketch012")
sketch13.AttachmentSupport = (doc.getObject("XY_Plane001"), [""])
sketch13.MapMode = "FlatFace"
sketch13.AttachmentOffset = App.Placement(Vector(0, 0, 10.9), App.Rotation())
sketch13.addGeometry(Part.Circle(Vector(-2.5, -7.6, 0), Vector(0, 0, 1), 2.4), False)
sketch13.addGeometry(Part.Circle(Vector(-2.5, -7.6, 0), Vector(0, 0, 1), 1.5), False)
sketch13.addGeometry(Part.Circle(Vector(7.8, 1.6, 0), Vector(0, 0, 1), 2.4), False)
sketch13.addGeometry(Part.Circle(Vector(7.8, 1.6, 0), Vector(0, 0, 1), 1.5), False)
sketch13.addGeometry(Part.Circle(Vector(0, 0, 0), Vector(0, 0, 1), 3.2), False)
sketch13.addGeometry(Part.Circle(Vector(0, 0, 0), Vector(0, 0, 1), 2.2), False)
sketch13.addGeometry(Part.Circle(Vector(-5.3, 6, 0), Vector(0, 0, 1), 2.4), False)
sketch13.addGeometry(Part.Circle(Vector(-5.3, 6, 0), Vector(0, 0, 1), 1.5), False)
sketch13.addConstraint(Sketcher.Constraint("Coincident", 4, 3, -1, 1))
sketch13.addConstraint(Sketcher.Constraint("Coincident", 5, 3, -1, 1))
sketch13.addConstraint(Sketcher.Constraint("Coincident", 1, 3, 0, 3))
sketch13.addConstraint(Sketcher.Constraint("Coincident", 3, 3, 2, 3))
sketch13.addConstraint(Sketcher.Constraint("Coincident", 7, 3, 6, 3))
sketch13.addConstraint(Sketcher.Constraint("Equal", 0, 2))
sketch13.addConstraint(Sketcher.Constraint("Equal", 1, 3))
sketch13.addConstraint(Sketcher.Constraint("Equal", 2, 6))
sketch13.addConstraint(Sketcher.Constraint("Equal", 3, 7))
sketch13.addConstraint(Sketcher.Constraint("Diameter", 1, 3.0))
sketch13.addConstraint(Sketcher.Constraint("Diameter", 0, 4.8))
sketch13.addConstraint(Sketcher.Constraint("Diameter", 4, 6.4))
sketch13.addConstraint(Sketcher.Constraint("Diameter", 5, 4.5))
sketch13.addConstraint(Sketcher.Constraint("DistanceX", -1, 1, 2, 3, 7.837582))
sketch13.addConstraint(Sketcher.Constraint("DistanceX", 6, 3, -1, 1, 5.30776))
sketch13.addConstraint(Sketcher.Constraint("DistanceY", 0, 3, 2, 3, 9.193309))
sketch13.addConstraint(Sketcher.Constraint("DistanceY", 0, 3, 6, 3, 13.57509))
sketch13.addConstraint(Sketcher.Constraint("DistanceX", 0, 3, -1, 1, 2.529822))
sketch13.addConstraint(Sketcher.Constraint("DistanceY", 0, 3, -1, 1, 7.589466))
pad7 = body2.newObject("PartDesign::Pad", "Pad006")
pad7.Profile = sketch13
pad7.Length = 3.8
pad7.Reversed = True

# Sketch on XY plane
sketch14 = body2.newObject("Sketcher::SketchObject", "Sketch013")
sketch14.AttachmentSupport = (doc.getObject("XY_Plane001"), [""])
sketch14.MapMode = "FlatFace"
sketch14.AttachmentOffset = App.Placement(Vector(0, 0, 10.9), App.Rotation())
sketch14.addGeometry(Part.Circle(Vector(0, 0, 0), Vector(0, 0, 1), 16), False)
sketch14.addGeometry(Part.Circle(Vector(0, 0, 0), Vector(0, 0, 1), 12), False)
sketch14.addConstraint(Sketcher.Constraint("Coincident", 0, 3, -1, 1))
sketch14.addConstraint(Sketcher.Constraint("Coincident", 1, 3, -1, 1))
sketch14.addConstraint(Sketcher.Constraint("Diameter", 1, 24.6))
sketch14.addConstraint(Sketcher.Constraint("Diameter", 0, 32.457969))
pocket7 = body2.newObject("PartDesign::Pocket", "Pocket006")
pocket7.Profile = sketch14
pocket7.Type = "ThroughAll"
pocket7.Midplane = True

doc.recompute()
